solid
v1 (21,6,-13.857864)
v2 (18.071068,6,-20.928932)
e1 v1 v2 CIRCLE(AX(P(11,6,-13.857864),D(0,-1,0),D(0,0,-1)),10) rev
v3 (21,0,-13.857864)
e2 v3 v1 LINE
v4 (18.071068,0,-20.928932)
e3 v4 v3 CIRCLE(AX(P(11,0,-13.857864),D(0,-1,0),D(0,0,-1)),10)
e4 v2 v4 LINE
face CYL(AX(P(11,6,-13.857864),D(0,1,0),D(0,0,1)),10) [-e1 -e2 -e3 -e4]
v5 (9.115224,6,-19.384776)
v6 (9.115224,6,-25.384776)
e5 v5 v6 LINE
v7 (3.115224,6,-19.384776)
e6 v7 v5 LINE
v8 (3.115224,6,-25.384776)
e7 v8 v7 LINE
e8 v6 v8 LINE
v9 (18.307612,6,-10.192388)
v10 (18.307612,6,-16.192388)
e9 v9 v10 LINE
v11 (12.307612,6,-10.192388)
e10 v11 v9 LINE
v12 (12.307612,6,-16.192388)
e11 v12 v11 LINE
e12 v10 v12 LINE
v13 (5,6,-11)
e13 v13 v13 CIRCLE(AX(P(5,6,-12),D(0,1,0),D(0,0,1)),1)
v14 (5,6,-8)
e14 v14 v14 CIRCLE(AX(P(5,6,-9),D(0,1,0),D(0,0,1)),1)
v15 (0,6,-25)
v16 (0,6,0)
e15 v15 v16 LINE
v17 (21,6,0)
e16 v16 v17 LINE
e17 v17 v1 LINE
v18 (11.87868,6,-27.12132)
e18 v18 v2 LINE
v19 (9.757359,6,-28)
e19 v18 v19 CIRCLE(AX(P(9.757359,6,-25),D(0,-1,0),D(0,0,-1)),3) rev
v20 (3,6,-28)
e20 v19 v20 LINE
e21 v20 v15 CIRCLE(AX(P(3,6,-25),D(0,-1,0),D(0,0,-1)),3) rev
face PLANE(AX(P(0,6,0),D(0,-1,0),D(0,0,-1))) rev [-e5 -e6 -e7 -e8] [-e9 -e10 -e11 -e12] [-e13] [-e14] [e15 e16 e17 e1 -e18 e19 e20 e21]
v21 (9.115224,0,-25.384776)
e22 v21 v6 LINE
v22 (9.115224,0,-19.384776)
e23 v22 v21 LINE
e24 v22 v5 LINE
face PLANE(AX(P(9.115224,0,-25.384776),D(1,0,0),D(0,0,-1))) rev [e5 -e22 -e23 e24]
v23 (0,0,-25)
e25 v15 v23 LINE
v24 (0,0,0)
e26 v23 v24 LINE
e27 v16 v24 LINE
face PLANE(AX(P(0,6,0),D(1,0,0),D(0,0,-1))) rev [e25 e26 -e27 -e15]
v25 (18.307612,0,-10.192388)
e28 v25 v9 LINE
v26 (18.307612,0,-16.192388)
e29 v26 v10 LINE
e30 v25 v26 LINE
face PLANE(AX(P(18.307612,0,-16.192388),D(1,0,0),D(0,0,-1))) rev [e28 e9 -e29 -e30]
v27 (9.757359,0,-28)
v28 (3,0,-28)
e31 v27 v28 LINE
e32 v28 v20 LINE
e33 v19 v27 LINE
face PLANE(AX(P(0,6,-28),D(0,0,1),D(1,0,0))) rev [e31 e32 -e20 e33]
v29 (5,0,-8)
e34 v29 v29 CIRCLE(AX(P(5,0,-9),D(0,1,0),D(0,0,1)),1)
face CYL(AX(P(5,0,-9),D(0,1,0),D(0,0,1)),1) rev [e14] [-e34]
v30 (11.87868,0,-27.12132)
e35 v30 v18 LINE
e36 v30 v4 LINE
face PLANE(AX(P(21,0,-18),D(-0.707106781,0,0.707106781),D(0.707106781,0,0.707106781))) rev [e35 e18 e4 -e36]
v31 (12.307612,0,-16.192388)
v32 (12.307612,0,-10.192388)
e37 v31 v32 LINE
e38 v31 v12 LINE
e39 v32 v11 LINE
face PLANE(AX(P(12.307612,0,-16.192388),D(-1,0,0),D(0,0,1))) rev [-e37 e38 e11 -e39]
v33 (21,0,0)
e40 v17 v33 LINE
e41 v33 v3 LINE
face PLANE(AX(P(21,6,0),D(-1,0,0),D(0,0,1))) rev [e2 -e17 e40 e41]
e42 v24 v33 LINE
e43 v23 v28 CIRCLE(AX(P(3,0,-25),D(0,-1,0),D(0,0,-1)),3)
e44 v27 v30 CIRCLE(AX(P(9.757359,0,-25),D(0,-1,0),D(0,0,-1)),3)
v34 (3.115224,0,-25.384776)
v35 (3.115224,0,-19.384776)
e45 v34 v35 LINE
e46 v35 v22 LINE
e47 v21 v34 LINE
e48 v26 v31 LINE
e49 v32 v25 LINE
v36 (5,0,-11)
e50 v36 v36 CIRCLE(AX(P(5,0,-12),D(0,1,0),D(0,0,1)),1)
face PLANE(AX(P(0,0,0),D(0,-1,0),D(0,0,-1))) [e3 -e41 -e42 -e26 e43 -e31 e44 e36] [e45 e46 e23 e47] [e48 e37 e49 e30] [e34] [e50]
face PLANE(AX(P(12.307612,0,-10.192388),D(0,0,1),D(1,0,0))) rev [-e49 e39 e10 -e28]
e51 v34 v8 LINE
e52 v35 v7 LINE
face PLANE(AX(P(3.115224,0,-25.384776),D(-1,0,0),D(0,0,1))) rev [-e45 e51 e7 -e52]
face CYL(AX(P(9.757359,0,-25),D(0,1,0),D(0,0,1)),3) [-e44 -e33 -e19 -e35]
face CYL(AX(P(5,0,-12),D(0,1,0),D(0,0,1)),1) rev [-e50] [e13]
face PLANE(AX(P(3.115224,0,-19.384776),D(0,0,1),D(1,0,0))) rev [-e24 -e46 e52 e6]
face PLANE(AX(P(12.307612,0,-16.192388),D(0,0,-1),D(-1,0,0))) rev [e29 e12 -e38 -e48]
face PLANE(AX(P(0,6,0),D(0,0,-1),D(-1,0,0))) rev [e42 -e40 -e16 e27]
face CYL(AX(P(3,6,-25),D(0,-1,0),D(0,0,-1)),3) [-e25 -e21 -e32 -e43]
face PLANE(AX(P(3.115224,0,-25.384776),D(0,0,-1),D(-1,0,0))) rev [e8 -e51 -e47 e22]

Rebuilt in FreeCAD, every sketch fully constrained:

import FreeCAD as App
import Part
import Sketcher
from FreeCAD import Vector
Q = App.Units.Quantity


def edges_at(feature, points):
    """Names of the edges that pass closest to the given points."""
    edges = feature.Shape.Edges
    near = lambda p: min(range(len(edges)), key=lambda i: edges[i].distToShape(Part.Vertex(*p))[0])
    return sorted({f"Edge{near(p) + 1}" for p in points})


def add_polygon(sketch, points):
    """Adds a closed chain of lines whose ends are joined by coincident constraints."""
    first, n = sketch.GeometryCount, len(points)
    for a, b in zip(points, points[1:] + points[:1]):
        sketch.addGeometry(Part.LineSegment(App.Vector(*a, 0), App.Vector(*b, 0)), False)
    for i in range(n):
        sketch.addConstraint(Sketcher.Constraint("Coincident", first + i, 2, first + (i + 1) % n, 1))

doc = App.newDocument("Part")
body = doc.addObject("PartDesign::Body", "Body")

# Sketch on XZ plane
sketch1 = body.newObject("Sketcher::SketchObject", "Sketch")
sketch1.AttachmentSupport = (doc.getObject("XZ_Plane"), [""])
sketch1.MapMode = "FlatFace"
add_polygon(sketch1, [(21, 0), (21, -9), (27, -9), (27, -28), (0, -28), (0, 0)])  # lines 0-5
sketch1.addConstraint([
    Sketcher.Constraint("Vertical", 0),
    Sketcher.Constraint("Horizontal", 1),
    Sketcher.Constraint("Vertical", 2),
    Sketcher.Constraint("Horizontal", 3),
    Sketcher.Constraint("Vertical", 4),
    Sketcher.Constraint("Horizontal", 5),
    Sketcher.Constraint("Coincident", 4, 2, -1, 1),
    Sketcher.Constraint("DistanceX", 1, 1, 1, 2, 6.0),
    Sketcher.Constraint("DistanceX", 3, 2, 3, 1, 27.0),
    Sketcher.Constraint("DistanceY", 0, 2, 0, 1, 9.0),
    Sketcher.Constraint("DistanceY", 2, 2, 2, 1, 19.0),
])
pad1 = body.newObject("PartDesign::Pad", "Pad")
pad1.Profile = sketch1
pad1.Length = 6
pad1.Reversed = True

# Sketch on XZ plane
sketch2 = body.newObject("Sketcher::SketchObject", "Sketch001")
sketch2.AttachmentSupport = (doc.getObject("XZ_Plane"), [""])
sketch2.MapMode = "FlatFace"
sketch2.AttachmentOffset = App.Placement(Vector(0, 0, -6), App.Rotation())
add_polygon(sketch2, [(3.115224, -25.384776), (3.115224, -20.384776), (8.115224, -20.384776), (8.115224, -25.384776)])  # lines 0-3
add_polygon(sketch2, [(12.307612, -16.192388), (12.307612, -11.192388), (17.307612, -11.192388), (17.307612, -16.192388)])  # lines 4-7
sketch2.addConstraint([
    Sketcher.Constraint("Vertical", 0),
    Sketcher.Constraint("Horizontal", 1),
    Sketcher.Constraint("Vertical", 2),
    Sketcher.Constraint("Horizontal", 3),
    Sketcher.Constraint("Vertical", 4),
    Sketcher.Constraint("Horizontal", 5),
    Sketcher.Constraint("Vertical", 6),
    Sketcher.Constraint("Horizontal", 7),
    Sketcher.Constraint("Equal", 3, 5),
    Sketcher.Constraint("Equal", 7, 0),
    Sketcher.Constraint("Equal", 2, 4),
    Sketcher.Constraint("DistanceX", 1, 1, 1, 2, 5.0),
    Sketcher.Constraint("DistanceX", -1, 1, 4, 2, 12.307612),
    Sketcher.Constraint("DistanceY", 4, 2, -1, 1, 11.192388),
    Sketcher.Constraint("DistanceX", 1, 2, 4, 2, 4.192388),
    Sketcher.Constraint("DistanceY", 1, 2, 4, 2, 9.192388),
])
pocket1 = body.newObject("PartDesign::Pocket", "Pocket")
pocket1.Profile = sketch2
pocket1.Type = "ThroughAll"
pocket1.Reversed = True

# Sketch on XZ plane
sketch3 = body.newObject("Sketcher::SketchObject", "Sketch002")
sketch3.AttachmentSupport = (doc.getObject("XZ_Plane"), [""])
sketch3.MapMode = "FlatFace"
sketch3.AttachmentOffset = App.Placement(Vector(0, 0, -6), App.Rotation())
add_polygon(sketch3, [(11, -28), (21, -18), (21, -9), (36.080477, -3.383508), (33.436736, -34.250964)])  # lines 0-4
sketch3.addConstraint([
    Sketcher.Constraint("Vertical", 1),
    Sketcher.Constraint("DistanceY", 1, 1, 1, 2, 9.0),
    Sketcher.Constraint("Angle", 0, Q("45 deg")),
    Sketcher.Constraint("DistanceX", -1, 1, 0, 2, 21.0),
    Sketcher.Constraint("DistanceY", 0, 2, -1, 1, 18.0),
    Sketcher.Constraint("DistanceX", -1, 1, 4, 2, 11.0),
    Sketcher.Constraint("DistanceX", 3, 2, 2, 2, 2.64374),
    Sketcher.Constraint("Distance", 2, 16.092413),
    Sketcher.Constraint("Distance", 3, 30.980465),
    Sketcher.Constraint("Distance", 4, 23.291236),
])
pocket2 = body.newObject("PartDesign::Pocket", "Pocket001")
pocket2.Profile = sketch3
pocket2.Type = "ThroughAll"
pocket2.Reversed = True

# Sketch on XZ plane
sketch4 = body.newObject("Sketcher::SketchObject", "Sketch003")
sketch4.AttachmentSupport = (doc.getObject("XZ_Plane"), [""])
sketch4.MapMode = "FlatFace"
sketch4.AttachmentOffset = App.Placement(Vector(0, 0, -6), App.Rotation())
add_polygon(sketch4, [(3.115224, -25.384776), (3.115224, -19.384776), (9.115224, -19.384776), (9.115224, -25.384776)])  # lines 0-3
add_polygon(sketch4, [(12.307612, -16.192388), (12.307612, -10.192388), (18.307612, -10.192388), (18.307612, -16.192388)])  # lines 4-7
sketch4.addConstraint([
    Sketcher.Constraint("Vertical", 0),
    Sketcher.Constraint("Horizontal", 1),
    Sketcher.Constraint("Vertical", 2),
    Sketcher.Constraint("Horizontal", 3),
    Sketcher.Constraint("Vertical", 4),
    Sketcher.Constraint("Horizontal", 5),
    Sketcher.Constraint("Vertical", 6),
    Sketcher.Constraint("Horizontal", 7),
    Sketcher.Constraint("Equal", 3, 5),
    Sketcher.Constraint("Equal", 7, 0),
    Sketcher.Constraint("Equal", 2, 4),
    Sketcher.Constraint("DistanceX", 1, 1, 1, 2, 6.0),
    Sketcher.Constraint("DistanceX", -1, 1, 4, 2, 12.307612),
    Sketcher.Constraint("DistanceY", 4, 2, -1, 1, 10.192388),
    Sketcher.Constraint("DistanceX", 1, 2, 4, 2, 3.192388),
    Sketcher.Constraint("DistanceY", 1, 2, 4, 2, 9.192388),
])
pocket3 = body.newObject("PartDesign::Pocket", "Pocket002")
pocket3.Profile = sketch4
pocket3.Type = "ThroughAll"
pocket3.Reversed = True
doc.recompute()

fillet = body.newObject("PartDesign::Fillet", "Fillet")
fillet.Base = (pocket3, edges_at(pocket3, [(21, 3, -18)]))
fillet.Radius = 10
doc.recompute()

fillet2 = body.newObject("PartDesign::Fillet", "Fillet001")
fillet2.Base = (fillet, edges_at(fillet, [(0, 3, -28), (11, 3, -28)]))
fillet2.Radius = 3

# Sketch on XZ plane
sketch5 = body.newObject("Sketcher::SketchObject", "Sketch004")
sketch5.AttachmentSupport = (doc.getObject("XZ_Plane"), [""])
sketch5.MapMode = "FlatFace"
sketch5.AttachmentOffset = App.Placement(Vector(0, 0, -6), App.Rotation())
sketch5.addGeometry([
    Part.Circle(Vector(5, -12, 0), Vector(0, 0, 1), 1),
    Part.Circle(Vector(5, -9, 0), Vector(0, 0, 1), 1),
], False)
sketch5.addConstraint([
    Sketcher.Constraint("Equal", 0, 1),
    Sketcher.Constraint("Vertical", 0, 3, 1, 3),
    Sketcher.Constraint("Diameter", 0, 2.0),
    Sketcher.Constraint("DistanceX", -1, 1, 0, 3, 5.0),
    Sketcher.Constraint("DistanceY", 0, 3, -1, 1, 12.0),
    Sketcher.Constraint("DistanceY", 1, 3, -1, 1, 9.0),
])
pocket4 = body.newObject("PartDesign::Pocket", "Pocket003")
pocket4.Profile = sketch5
pocket4.Type = "ThroughAll"
pocket4.Reversed = True

doc.recompute()
